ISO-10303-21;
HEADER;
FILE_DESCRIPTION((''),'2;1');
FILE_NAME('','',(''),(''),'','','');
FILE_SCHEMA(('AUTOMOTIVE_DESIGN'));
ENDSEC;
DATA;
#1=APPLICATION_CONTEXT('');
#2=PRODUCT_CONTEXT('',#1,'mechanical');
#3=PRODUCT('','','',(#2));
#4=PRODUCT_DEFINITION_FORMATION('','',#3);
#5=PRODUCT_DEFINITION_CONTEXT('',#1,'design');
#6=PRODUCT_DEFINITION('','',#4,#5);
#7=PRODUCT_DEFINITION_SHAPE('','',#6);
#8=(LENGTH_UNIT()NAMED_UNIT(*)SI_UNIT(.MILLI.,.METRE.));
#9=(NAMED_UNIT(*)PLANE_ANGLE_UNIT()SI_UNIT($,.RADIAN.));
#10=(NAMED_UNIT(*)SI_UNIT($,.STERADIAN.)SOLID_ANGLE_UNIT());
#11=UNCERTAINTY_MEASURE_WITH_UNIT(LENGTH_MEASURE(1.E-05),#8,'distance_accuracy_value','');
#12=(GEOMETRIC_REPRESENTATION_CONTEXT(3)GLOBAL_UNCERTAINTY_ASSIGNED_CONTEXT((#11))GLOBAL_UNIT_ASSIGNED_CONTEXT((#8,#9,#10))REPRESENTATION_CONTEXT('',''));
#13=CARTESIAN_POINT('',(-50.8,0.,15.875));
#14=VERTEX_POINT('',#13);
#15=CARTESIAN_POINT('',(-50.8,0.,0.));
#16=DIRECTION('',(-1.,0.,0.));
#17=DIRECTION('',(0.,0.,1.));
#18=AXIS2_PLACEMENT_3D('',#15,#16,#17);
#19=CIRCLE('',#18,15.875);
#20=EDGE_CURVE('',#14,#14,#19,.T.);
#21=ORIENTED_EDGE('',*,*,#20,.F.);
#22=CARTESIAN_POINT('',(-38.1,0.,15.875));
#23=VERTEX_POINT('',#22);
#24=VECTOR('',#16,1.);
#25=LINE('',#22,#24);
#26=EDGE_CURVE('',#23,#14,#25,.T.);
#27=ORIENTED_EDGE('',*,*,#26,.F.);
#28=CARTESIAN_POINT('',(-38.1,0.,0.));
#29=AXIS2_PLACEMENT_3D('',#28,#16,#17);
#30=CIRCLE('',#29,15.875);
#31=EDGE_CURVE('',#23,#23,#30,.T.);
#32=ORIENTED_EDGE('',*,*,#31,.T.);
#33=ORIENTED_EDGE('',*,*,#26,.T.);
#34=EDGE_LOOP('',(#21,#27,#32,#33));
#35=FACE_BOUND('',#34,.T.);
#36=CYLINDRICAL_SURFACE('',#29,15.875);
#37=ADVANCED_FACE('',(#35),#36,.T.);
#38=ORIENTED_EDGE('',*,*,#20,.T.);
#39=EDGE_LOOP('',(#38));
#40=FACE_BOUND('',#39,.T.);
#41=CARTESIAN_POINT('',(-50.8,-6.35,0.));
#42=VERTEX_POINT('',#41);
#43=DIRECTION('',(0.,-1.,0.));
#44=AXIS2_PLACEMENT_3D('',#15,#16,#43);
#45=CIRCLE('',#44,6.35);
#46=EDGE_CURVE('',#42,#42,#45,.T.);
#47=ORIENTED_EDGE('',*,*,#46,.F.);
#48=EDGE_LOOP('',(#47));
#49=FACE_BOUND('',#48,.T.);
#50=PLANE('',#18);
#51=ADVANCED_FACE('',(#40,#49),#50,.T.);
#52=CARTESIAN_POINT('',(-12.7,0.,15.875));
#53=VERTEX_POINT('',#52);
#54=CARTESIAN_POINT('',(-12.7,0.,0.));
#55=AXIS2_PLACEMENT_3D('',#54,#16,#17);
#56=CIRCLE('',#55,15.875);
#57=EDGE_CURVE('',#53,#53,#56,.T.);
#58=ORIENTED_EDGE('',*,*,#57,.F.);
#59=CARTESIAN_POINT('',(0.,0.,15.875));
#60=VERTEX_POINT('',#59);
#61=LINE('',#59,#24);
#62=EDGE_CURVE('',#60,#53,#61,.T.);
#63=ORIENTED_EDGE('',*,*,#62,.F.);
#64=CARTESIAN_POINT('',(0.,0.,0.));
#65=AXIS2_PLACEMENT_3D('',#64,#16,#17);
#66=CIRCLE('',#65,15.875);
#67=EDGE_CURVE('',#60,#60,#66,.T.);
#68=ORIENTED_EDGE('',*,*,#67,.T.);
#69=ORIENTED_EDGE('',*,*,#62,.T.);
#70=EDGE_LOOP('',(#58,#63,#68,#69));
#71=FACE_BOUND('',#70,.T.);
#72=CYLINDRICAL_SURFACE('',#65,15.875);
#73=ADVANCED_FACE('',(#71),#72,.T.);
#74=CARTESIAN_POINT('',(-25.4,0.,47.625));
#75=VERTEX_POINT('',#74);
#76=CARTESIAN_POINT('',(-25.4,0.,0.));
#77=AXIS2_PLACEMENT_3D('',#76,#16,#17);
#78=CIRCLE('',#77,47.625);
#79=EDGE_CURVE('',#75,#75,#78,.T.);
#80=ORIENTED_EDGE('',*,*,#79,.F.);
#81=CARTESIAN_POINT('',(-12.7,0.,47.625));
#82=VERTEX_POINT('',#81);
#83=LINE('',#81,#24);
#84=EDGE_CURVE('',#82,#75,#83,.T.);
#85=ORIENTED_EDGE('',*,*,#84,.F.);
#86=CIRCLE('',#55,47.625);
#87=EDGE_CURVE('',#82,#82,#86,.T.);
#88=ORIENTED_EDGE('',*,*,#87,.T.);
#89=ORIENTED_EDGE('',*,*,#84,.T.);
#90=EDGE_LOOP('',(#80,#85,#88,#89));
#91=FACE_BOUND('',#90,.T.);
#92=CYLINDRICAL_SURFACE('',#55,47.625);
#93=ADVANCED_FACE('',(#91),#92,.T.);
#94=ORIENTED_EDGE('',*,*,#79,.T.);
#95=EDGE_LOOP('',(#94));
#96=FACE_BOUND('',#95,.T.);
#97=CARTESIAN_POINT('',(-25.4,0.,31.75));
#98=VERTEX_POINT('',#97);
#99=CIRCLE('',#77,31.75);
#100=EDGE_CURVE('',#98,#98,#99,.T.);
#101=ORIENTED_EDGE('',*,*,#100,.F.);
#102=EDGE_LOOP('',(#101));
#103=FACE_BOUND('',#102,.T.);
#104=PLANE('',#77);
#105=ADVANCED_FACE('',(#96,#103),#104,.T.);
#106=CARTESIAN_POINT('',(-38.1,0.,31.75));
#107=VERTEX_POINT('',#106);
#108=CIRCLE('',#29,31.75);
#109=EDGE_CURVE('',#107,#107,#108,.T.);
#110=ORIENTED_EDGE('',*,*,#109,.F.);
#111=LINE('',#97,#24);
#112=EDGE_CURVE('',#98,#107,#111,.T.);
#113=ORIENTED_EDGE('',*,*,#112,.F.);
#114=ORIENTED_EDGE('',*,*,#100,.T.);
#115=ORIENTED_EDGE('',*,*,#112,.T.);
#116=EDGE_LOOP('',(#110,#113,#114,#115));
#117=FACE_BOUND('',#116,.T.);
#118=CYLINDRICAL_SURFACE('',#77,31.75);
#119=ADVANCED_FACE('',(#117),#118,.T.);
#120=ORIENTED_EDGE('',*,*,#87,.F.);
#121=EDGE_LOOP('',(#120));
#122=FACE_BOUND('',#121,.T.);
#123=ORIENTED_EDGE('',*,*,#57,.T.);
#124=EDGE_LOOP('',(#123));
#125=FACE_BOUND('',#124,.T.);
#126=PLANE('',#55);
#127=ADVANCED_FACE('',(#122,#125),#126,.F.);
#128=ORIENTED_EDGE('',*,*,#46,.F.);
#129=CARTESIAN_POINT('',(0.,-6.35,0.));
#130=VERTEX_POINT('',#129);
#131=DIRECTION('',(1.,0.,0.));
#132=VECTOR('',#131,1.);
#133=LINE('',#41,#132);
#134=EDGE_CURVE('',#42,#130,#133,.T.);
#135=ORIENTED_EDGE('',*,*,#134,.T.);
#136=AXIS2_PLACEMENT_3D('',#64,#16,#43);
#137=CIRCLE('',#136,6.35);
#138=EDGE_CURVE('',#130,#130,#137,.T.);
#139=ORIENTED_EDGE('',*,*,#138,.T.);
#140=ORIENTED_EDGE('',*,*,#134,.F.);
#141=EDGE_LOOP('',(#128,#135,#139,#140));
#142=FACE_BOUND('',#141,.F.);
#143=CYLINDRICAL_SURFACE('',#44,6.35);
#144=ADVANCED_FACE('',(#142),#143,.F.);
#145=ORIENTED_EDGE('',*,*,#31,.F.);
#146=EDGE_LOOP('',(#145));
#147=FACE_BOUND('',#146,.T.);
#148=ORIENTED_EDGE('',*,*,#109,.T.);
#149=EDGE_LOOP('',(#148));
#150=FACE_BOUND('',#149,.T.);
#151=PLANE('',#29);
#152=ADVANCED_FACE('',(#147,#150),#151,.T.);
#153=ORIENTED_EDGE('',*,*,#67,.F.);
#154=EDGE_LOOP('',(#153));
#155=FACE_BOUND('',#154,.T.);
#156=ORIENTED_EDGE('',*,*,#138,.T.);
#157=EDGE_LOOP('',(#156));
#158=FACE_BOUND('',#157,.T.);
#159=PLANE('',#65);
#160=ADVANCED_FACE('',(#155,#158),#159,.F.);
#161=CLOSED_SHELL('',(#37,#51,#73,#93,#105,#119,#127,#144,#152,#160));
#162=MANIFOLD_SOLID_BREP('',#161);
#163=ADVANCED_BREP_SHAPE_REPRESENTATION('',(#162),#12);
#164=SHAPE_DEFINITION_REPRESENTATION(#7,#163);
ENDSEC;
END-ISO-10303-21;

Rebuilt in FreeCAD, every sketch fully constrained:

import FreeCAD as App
import Part
import Sketcher

V = App.Vector
Q = App.Units.Quantity


def add_polygon(sketch, points):
    """Adds a closed chain of lines whose ends are joined by coincident constraints."""
    first, n = sketch.GeometryCount, len(points)
    for a, b in zip(points, points[1:] + points[:1]):
        sketch.addGeometry(Part.LineSegment(App.Vector(*a, 0), App.Vector(*b, 0)), False)
    for i in range(n):
        sketch.addConstraint(Sketcher.Constraint("Coincident", first + i, 2, first + (i + 1) % n, 1))

doc = App.newDocument("Part")
body = doc.addObject("PartDesign::Body", "Body")

# Sketch on XZ plane
sketch1 = body.newObject("Sketcher::SketchObject", "Sketch")
sketch1.AttachmentSupport = (doc.getObject("XZ_Plane"), [""])
sketch1.MapMode = "FlatFace"
add_polygon(sketch1, [(-51, 16), (-51, 0), (0, 0), (0, 16), (-13, 16), (-13, 48), (-25, 48), (-25, 32), (-38, 32), (-38, 16)])  # lines 0-9
sketch1.addConstraint(Sketcher.Constraint("Vertical", 0))
sketch1.addConstraint(Sketcher.Constraint("Horizontal", 1))
sketch1.addConstraint(Sketcher.Constraint("Vertical", 2))
sketch1.addConstraint(Sketcher.Constraint("Horizontal", 3))
sketch1.addConstraint(Sketcher.Constraint("Vertical", 4))
sketch1.addConstraint(Sketcher.Constraint("Horizontal", 5))
sketch1.addConstraint(Sketcher.Constraint("Vertical", 6))
sketch1.addConstraint(Sketcher.Constraint("Horizontal", 7))
sketch1.addConstraint(Sketcher.Constraint("Vertical", 8))
sketch1.addConstraint(Sketcher.Constraint("Horizontal", 9))
sketch1.addConstraint(Sketcher.Constraint("Coincident", 1, 2, -1, 1))
sketch1.addConstraint(Sketcher.Constraint("Horizontal", 3, 2, 8, 2))
sketch1.addConstraint(Sketcher.Constraint("Equal", 3, 5))
sketch1.addConstraint(Sketcher.Constraint("Equal", 5, 7))
sketch1.addConstraint(Sketcher.Constraint("Equal", 7, 9))
sketch1.addConstraint(Sketcher.Constraint("Equal", 2, 6))
sketch1.addConstraint(Sketcher.Constraint("Equal", 6, 8))
sketch1.addConstraint(Sketcher.Constraint("DistanceX", 1, 1, 1, 2, Q("2 in")))
sketch1.addConstraint(Sketcher.Constraint("DistanceY", 4, 1, 4, 2, Q("1.25 in")))
revolution = body.newObject("PartDesign::Revolution", "Revolution")
revolution.Profile = sketch1
revolution.ReferenceAxis = (sketch1, ["H_Axis"])
revolution.Angle = 360

# Sketch on YZ plane
sketch2 = body.newObject("Sketcher::SketchObject", "Sketch001")
sketch2.AttachmentSupport = (doc.getObject("YZ_Plane"), [""])
sketch2.MapMode = "FlatFace"
sketch2.AttachmentOffset = App.Placement(V(0, 0, -2 * 25.4), App.Rotation())
sketch2.addGeometry(Part.Circle(V(0, 0, 0), V(0, 0, 1), 6), False)
sketch2.addConstraint(Sketcher.Constraint("Coincident", 0, 3, -1, 1))
sketch2.addConstraint(Sketcher.Constraint("Diameter", 0, Q("0.5 in")))
pocket1 = body.newObject("PartDesign::Pocket", "Pocket")
pocket1.Profile = sketch2
pocket1.Length = Q("2 in")
pocket1.Reversed = True

doc.recompute()
